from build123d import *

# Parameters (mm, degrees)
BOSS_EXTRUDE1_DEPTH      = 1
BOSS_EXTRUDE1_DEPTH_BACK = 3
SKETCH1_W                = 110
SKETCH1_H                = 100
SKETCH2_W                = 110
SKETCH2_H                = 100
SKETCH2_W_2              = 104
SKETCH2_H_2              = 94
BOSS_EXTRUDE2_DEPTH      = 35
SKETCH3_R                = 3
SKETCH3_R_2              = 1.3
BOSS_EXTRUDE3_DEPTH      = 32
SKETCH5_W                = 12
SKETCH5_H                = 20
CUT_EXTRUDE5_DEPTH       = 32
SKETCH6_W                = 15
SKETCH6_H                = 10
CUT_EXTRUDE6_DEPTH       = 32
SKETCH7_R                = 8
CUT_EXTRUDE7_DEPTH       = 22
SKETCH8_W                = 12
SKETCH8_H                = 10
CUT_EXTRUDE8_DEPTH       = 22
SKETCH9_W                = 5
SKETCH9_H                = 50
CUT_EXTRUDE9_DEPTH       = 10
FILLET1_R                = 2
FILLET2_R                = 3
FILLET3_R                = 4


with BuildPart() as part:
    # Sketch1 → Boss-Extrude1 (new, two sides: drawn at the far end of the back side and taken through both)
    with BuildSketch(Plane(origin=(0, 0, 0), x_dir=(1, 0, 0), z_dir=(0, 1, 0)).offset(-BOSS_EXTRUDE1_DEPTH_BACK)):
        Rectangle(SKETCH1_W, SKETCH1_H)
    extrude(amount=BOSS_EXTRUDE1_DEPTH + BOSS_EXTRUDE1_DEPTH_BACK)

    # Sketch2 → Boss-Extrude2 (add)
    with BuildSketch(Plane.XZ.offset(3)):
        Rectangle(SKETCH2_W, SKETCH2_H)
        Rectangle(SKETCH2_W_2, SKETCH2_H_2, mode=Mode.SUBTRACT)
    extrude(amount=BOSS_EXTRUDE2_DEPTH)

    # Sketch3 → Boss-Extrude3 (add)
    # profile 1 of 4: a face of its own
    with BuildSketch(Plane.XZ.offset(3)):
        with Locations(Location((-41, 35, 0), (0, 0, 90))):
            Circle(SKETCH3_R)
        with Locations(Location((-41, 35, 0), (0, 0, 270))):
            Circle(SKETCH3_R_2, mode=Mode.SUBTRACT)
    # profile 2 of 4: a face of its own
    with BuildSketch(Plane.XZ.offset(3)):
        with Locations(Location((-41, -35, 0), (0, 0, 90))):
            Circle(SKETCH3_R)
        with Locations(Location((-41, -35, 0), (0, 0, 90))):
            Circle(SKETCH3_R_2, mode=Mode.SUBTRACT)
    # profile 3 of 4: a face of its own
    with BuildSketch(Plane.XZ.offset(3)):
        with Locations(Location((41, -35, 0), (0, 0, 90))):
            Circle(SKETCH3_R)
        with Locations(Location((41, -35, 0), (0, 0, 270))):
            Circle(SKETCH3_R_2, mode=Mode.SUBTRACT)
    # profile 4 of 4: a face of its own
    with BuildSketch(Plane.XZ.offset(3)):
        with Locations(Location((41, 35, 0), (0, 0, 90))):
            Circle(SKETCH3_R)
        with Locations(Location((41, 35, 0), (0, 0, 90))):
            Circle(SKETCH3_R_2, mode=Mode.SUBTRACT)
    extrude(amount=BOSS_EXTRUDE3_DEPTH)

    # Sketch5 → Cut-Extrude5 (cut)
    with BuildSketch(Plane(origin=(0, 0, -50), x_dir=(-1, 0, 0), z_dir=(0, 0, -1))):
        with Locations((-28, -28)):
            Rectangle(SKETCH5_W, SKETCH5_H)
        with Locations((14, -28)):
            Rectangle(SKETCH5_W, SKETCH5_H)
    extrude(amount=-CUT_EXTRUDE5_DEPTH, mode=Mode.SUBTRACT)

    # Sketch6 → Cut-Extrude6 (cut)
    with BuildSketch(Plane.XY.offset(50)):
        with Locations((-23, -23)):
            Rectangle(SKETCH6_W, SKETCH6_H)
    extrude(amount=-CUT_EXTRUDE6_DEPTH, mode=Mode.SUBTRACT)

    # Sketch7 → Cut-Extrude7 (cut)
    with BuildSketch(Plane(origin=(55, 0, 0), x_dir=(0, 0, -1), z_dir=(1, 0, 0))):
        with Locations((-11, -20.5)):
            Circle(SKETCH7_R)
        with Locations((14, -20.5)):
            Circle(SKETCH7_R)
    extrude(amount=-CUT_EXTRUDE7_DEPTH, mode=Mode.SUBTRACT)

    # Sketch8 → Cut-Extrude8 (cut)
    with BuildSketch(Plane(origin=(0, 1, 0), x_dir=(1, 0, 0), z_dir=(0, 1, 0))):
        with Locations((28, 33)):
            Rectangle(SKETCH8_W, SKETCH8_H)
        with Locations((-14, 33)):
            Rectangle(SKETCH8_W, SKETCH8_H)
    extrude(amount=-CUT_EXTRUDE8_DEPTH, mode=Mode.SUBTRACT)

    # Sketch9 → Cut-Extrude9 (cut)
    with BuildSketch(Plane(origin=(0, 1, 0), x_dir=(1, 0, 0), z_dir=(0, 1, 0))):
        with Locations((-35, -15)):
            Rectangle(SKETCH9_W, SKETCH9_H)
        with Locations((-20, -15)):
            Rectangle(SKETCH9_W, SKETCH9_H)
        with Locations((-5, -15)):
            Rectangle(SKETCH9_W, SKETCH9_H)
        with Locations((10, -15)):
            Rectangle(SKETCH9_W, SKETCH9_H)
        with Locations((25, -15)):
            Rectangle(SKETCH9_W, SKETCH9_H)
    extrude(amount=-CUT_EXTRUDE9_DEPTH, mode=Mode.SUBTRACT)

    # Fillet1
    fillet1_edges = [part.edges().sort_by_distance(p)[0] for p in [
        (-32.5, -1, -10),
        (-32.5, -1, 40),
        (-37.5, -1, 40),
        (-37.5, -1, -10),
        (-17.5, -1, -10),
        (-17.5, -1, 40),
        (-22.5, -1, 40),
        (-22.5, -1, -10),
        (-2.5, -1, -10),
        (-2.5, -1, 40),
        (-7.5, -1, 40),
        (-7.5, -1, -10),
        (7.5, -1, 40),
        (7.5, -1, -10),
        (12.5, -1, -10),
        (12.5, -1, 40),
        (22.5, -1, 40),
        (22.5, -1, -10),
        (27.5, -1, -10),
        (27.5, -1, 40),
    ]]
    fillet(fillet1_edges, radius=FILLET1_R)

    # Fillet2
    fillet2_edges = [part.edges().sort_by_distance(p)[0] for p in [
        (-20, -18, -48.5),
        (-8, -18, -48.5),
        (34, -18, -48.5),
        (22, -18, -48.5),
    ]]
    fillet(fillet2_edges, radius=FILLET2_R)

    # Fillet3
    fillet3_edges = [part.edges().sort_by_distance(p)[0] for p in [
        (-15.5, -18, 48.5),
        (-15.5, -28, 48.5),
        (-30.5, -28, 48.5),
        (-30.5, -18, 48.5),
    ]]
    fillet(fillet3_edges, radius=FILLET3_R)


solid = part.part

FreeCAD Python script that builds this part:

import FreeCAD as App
import Part
import Sketcher

V = App.Vector


def edges_at(feature, points):
    """Names of the edges that pass closest to the given points."""
    edges = feature.Shape.Edges
    near = lambda p: min(range(len(edges)), key=lambda i: edges[i].distToShape(Part.Vertex(*p))[0])
    return sorted({f"Edge{near(p) + 1}" for p in points})


def add_polygon(sketch, points):
    """Adds a closed chain of lines whose ends are joined by coincident constraints."""
    first, n = sketch.GeometryCount, len(points)
    for a, b in zip(points, points[1:] + points[:1]):
        sketch.addGeometry(Part.LineSegment(App.Vector(*a, 0), App.Vector(*b, 0)), False)
    for i in range(n):
        sketch.addConstraint(Sketcher.Constraint("Coincident", first + i, 2, first + (i + 1) % n, 1))

doc = App.newDocument("Part")
params = doc.addObject("Spreadsheet::Sheet", "Params")
for row, (alias, value) in enumerate([
    ("sketch1_width", "110 mm"),
    ("sketch1_height", "100 mm"),
    ("pad1_length", "1 mm"),
    ("pad1_length2", "3 mm"),
    ("sketch2_width", "110 mm"),
    ("sketch2_width2", "104 mm"),
    ("sketch2_height", "100 mm"),
    ("sketch2_height2", "94 mm"),
    ("pad2_length", "35 mm"),
    ("sketch3_diameter", "6 mm"),
    ("sketch3_diameter2", "2.6 mm"),
    ("pad3_length", "32 mm"),
    ("sketch4_width", "12 mm"),
    ("sketch4_height", "20 mm"),
    ("pocket1_length", "32 mm"),
    ("sketch5_width", "15 mm"),
    ("sketch5_height", "10 mm"),
    ("pocket2_length", "32 mm"),
    ("sketch6_diameter", "16 mm"),
    ("pocket3_length", "22 mm"),
    ("sketch7_width", "12 mm"),
    ("sketch7_height", "10 mm"),
    ("pocket4_length", "22 mm"),
    ("sketch8_width", "5 mm"),
    ("sketch8_height", "50 mm"),
    ("pocket5_length", "10 mm"),
    ("fillet_radius", "2 mm"),
    ("fillet2_radius", "3 mm"),
    ("fillet3_radius", "4 mm"),
], start=1):
    params.set(f"A{row}", alias)
    params.set(f"B{row}", "=" + value)
    params.setAlias(f"B{row}", alias)

body = doc.addObject("PartDesign::Body", "Body")

# Sketch on XZ plane
sketch1 = body.newObject("Sketcher::SketchObject", "Sketch")
sketch1.AttachmentSupport = (doc.getObject("XZ_Plane"), [""])
sketch1.MapMode = "FlatFace"
add_polygon(sketch1, [(-55, -50), (-55, 50), (55, 50), (55, -50)])  # lines 0-3
sketch1.addConstraint(Sketcher.Constraint("Vertical", 0))
sketch1.addConstraint(Sketcher.Constraint("Horizontal", 1))
sketch1.addConstraint(Sketcher.Constraint("Vertical", 2))
sketch1.addConstraint(Sketcher.Constraint("Horizontal", 3))
sketch1.addConstraint(Sketcher.Constraint("Symmetric", 0, 2, 2, 2, -1, 1))
sketch1.addConstraint(Sketcher.Constraint("DistanceX", 1, 1, 1, 2, 110.0))
sketch1.addConstraint(Sketcher.Constraint("DistanceY", 0, 1, 0, 2, 100.0))
sketch1.setExpression("Constraints[9]", "Params.sketch1_width")
sketch1.setExpression("Constraints[10]", "Params.sketch1_height")
pad1 = body.newObject("PartDesign::Pad", "Pad")
pad1.Profile = sketch1
pad1.Type = "TwoLengths"
pad1.setExpression("Length", "Params.pad1_length")
pad1.setExpression("Length2", "Params.pad1_length2")
pad1.Reversed = True

# Sketch on XZ plane
sketch2 = body.newObject("Sketcher::SketchObject", "Sketch001")
sketch2.AttachmentSupport = (doc.getObject("XZ_Plane"), [""])
sketch2.MapMode = "FlatFace"
sketch2.AttachmentOffset = App.Placement(V(0, 0, 3), App.Rotation())
add_polygon(sketch2, [(-55, 50), (-55, -50), (55, -50), (55, 50)])  # lines 0-3
add_polygon(sketch2, [(52, -47), (-52, -47), (-52, 47), (52, 47)])  # lines 4-7
sketch2.addConstraint(Sketcher.Constraint("Vertical", 0))
sketch2.addConstraint(Sketcher.Constraint("Horizontal", 1))
sketch2.addConstraint(Sketcher.Constraint("Vertical", 2))
sketch2.addConstraint(Sketcher.Constraint("Horizontal", 3))
sketch2.addConstraint(Sketcher.Constraint("Horizontal", 4))
sketch2.addConstraint(Sketcher.Constraint("Vertical", 5))
sketch2.addConstraint(Sketcher.Constraint("Horizontal", 6))
sketch2.addConstraint(Sketcher.Constraint("Vertical", 7))
sketch2.addConstraint(Sketcher.Constraint("Symmetric", 0, 2, 2, 2, -1, 1))
sketch2.addConstraint(Sketcher.Constraint("Symmetric", 4, 2, 6, 2, -1, 1))
sketch2.addConstraint(Sketcher.Constraint("DistanceX", 1, 1, 1, 2, 110.0))
sketch2.addConstraint(Sketcher.Constraint("DistanceX", 4, 2, 4, 1, 104.0))
sketch2.addConstraint(Sketcher.Constraint("DistanceY", 0, 2, 0, 1, 100.0))
sketch2.addConstraint(Sketcher.Constraint("DistanceY", 5, 1, 5, 2, 94.0))
sketch2.setExpression("Constraints[18]", "Params.sketch2_width")
sketch2.setExpression("Constraints[19]", "Params.sketch2_width2")
sketch2.setExpression("Constraints[20]", "Params.sketch2_height")
sketch2.setExpression("Constraints[21]", "Params.sketch2_height2")
pad2 = body.newObject("PartDesign::Pad", "Pad001")
pad2.Profile = sketch2
pad2.setExpression("Length", "Params.pad2_length")

# Sketch on XZ plane
sketch3 = body.newObject("Sketcher::SketchObject", "Sketch002")
sketch3.AttachmentSupport = (doc.getObject("XZ_Plane"), [""])
sketch3.MapMode = "FlatFace"
sketch3.AttachmentOffset = App.Placement(V(0, 0, 3), App.Rotation())
sketch3.addGeometry(Part.Circle(V(-41, 35, 0), V(0, 0, 1), 3), False)
sketch3.addGeometry(Part.Circle(V(-41, 35, 0), V(0, 0, 1), 1.3), False)
sketch3.addGeometry(Part.Circle(V(-41, -35, 0), V(0, 0, 1), 3), False)
sketch3.addGeometry(Part.Circle(V(-41, -35, 0), V(0, 0, 1), 1.3), False)
sketch3.addGeometry(Part.Circle(V(41, -35, 0), V(0, 0, 1), 3), False)
sketch3.addGeometry(Part.Circle(V(41, -35, 0), V(0, 0, 1), 1.3), False)
sketch3.addGeometry(Part.Circle(V(41, 35, 0), V(0, 0, 1), 3), False)
sketch3.addGeometry(Part.Circle(V(41, 35, 0), V(0, 0, 1), 1.3), False)
sketch3.addConstraint(Sketcher.Constraint("Coincident", 1, 3, 0, 3))
sketch3.addConstraint(Sketcher.Constraint("Coincident", 3, 3, 2, 3))
sketch3.addConstraint(Sketcher.Constraint("Coincident", 5, 3, 4, 3))
sketch3.addConstraint(Sketcher.Constraint("Coincident", 7, 3, 6, 3))
sketch3.addConstraint(Sketcher.Constraint("Equal", 0, 2))
sketch3.addConstraint(Sketcher.Constraint("Equal", 1, 3))
sketch3.addConstraint(Sketcher.Constraint("Equal", 2, 4))
sketch3.addConstraint(Sketcher.Constraint("Equal", 3, 5))
sketch3.addConstraint(Sketcher.Constraint("Equal", 4, 6))
sketch3.addConstraint(Sketcher.Constraint("Equal", 5, 7))
sketch3.addConstraint(Sketcher.Constraint("Symmetric", 0, 3, 4, 3, -1, 1))
sketch3.addConstraint(Sketcher.Constraint("Symmetric", 2, 3, 6, 3, -1, 1))
sketch3.addConstraint(Sketcher.Constraint("Symmetric", 2, 3, 4, 3, -2))
sketch3.addConstraint(Sketcher.Constraint("Diameter", 0, 6.0))
sketch3.addConstraint(Sketcher.Constraint("Diameter", 1, 2.6))
sketch3.addConstraint(Sketcher.Constraint("DistanceX", 0, 3, -1, 1, 41.0))
sketch3.addConstraint(Sketcher.Constraint("DistanceY", -1, 1, 0, 3, 35.0))
sketch3.setExpression("Constraints[13]", "Params.sketch3_diameter")
sketch3.setExpression("Constraints[14]", "Params.sketch3_diameter2")
pad3 = body.newObject("PartDesign::Pad", "Pad002")
pad3.Profile = sketch3
pad3.setExpression("Length", "Params.pad3_length")

# Sketch on XY plane
sketch4 = body.newObject("Sketcher::SketchObject", "Sketch003")
sketch4.AttachmentSupport = (doc.getObject("XY_Plane"), [""])
sketch4.MapMode = "FlatFace"
sketch4.AttachmentOffset = App.Placement(V(0, 0, -50), App.Rotation())
add_polygon(sketch4, [(34, -18), (34, -38), (22, -38), (22, -18)])  # lines 0-3
add_polygon(sketch4, [(-8, -18), (-8, -38), (-20, -38), (-20, -18)])  # lines 4-7
sketch4.addConstraint(Sketcher.Constraint("Vertical", 0))
sketch4.addConstraint(Sketcher.Constraint("Horizontal", 1))
sketch4.addConstraint(Sketcher.Constraint("Vertical", 2))
sketch4.addConstraint(Sketcher.Constraint("Horizontal", 3))
sketch4.addConstraint(Sketcher.Constraint("Vertical", 4))
sketch4.addConstraint(Sketcher.Constraint("Horizontal", 5))
sketch4.addConstraint(Sketcher.Constraint("Vertical", 6))
sketch4.addConstraint(Sketcher.Constraint("Horizontal", 7))
sketch4.addConstraint(Sketcher.Constraint("Horizontal", 1, 2, 4, 2))
sketch4.addConstraint(Sketcher.Constraint("Horizontal", 3, 2, 6, 2))
sketch4.addConstraint(Sketcher.Constraint("Equal", 3, 5))
sketch4.addConstraint(Sketcher.Constraint("DistanceX", 1, 2, 1, 1, 12.0))
sketch4.addConstraint(Sketcher.Constraint("DistanceY", 0, 2, 0, 1, 20.0))
sketch4.addConstraint(Sketcher.Constraint("DistanceX", -1, 1, 0, 2, 34.0))
sketch4.addConstraint(Sketcher.Constraint("DistanceY", 0, 2, -1, 1, 38.0))
sketch4.addConstraint(Sketcher.Constraint("DistanceX", 4, 2, -1, 1, 8.0))
sketch4.setExpression("Constraints[19]", "Params.sketch4_width")
sketch4.setExpression("Constraints[20]", "Params.sketch4_height")
pocket1 = body.newObject("PartDesign::Pocket", "Pocket")
pocket1.Profile = sketch4
pocket1.setExpression("Length", "Params.pocket1_length")
pocket1.Reversed = True

# Sketch on XY plane
sketch5 = body.newObject("Sketcher::SketchObject", "Sketch004")
sketch5.AttachmentSupport = (doc.getObject("XY_Plane"), [""])
sketch5.MapMode = "FlatFace"
sketch5.AttachmentOffset = App.Placement(V(0, 0, 50), App.Rotation())
add_polygon(sketch5, [(-30, -18), (-30, -28), (-16, -28), (-16, -18)])  # lines 0-3
sketch5.addConstraint(Sketcher.Constraint("Vertical", 0))
sketch5.addConstraint(Sketcher.Constraint("Horizontal", 1))
sketch5.addConstraint(Sketcher.Constraint("Vertical", 2))
sketch5.addConstraint(Sketcher.Constraint("Horizontal", 3))
sketch5.addConstraint(Sketcher.Constraint("DistanceX", 1, 1, 1, 2, 15.0))
sketch5.addConstraint(Sketcher.Constraint("DistanceY", 0, 2, 0, 1, 10.0))
sketch5.addConstraint(Sketcher.Constraint("DistanceY", 0, 2, -1, 1, 28.0))
sketch5.addConstraint(Sketcher.Constraint("DistanceX", 0, 2, -1, 1, 30.5))
sketch5.setExpression("Constraints[8]", "Params.sketch5_width")
sketch5.setExpression("Constraints[9]", "Params.sketch5_height")
pocket2 = body.newObject("PartDesign::Pocket", "Pocket001")
pocket2.Profile = sketch5
pocket2.setExpression("Length", "Params.pocket2_length")

# Sketch on YZ plane
sketch6 = body.newObject("Sketcher::SketchObject", "Sketch005")
sketch6.AttachmentSupport = (doc.getObject("YZ_Plane"), [""])
sketch6.MapMode = "FlatFace"
sketch6.AttachmentOffset = App.Placement(V(0, 0, 55), App.Rotation())
sketch6.addGeometry(Part.Circle(V(-20, 11, 0), V(0, 0, 1), 8), False)
sketch6.addGeometry(Part.Circle(V(-20, -14, 0), V(0, 0, 1), 8), False)
sketch6.addConstraint(Sketcher.Constraint("Equal", 0, 1))
sketch6.addConstraint(Sketcher.Constraint("Vertical", 0, 3, 1, 3))
sketch6.addConstraint(Sketcher.Constraint("Diameter", 0, 16.0))
sketch6.addConstraint(Sketcher.Constraint("DistanceY", -1, 1, 0, 3, 11.0))
sketch6.addConstraint(Sketcher.Constraint("DistanceY", 1, 3, -1, 1, 14.0))
sketch6.addConstraint(Sketcher.Constraint("DistanceX", 0, 3, -1, 1, 20.5))
sketch6.setExpression("Constraints[2]", "Params.sketch6_diameter")
pocket3 = body.newObject("PartDesign::Pocket", "Pocket002")
pocket3.Profile = sketch6
pocket3.setExpression("Length", "Params.pocket3_length")

# Sketch on XZ plane
sketch7 = body.newObject("Sketcher::SketchObject", "Sketch006")
sketch7.AttachmentSupport = (doc.getObject("XZ_Plane"), [""])
sketch7.MapMode = "FlatFace"
sketch7.AttachmentOffset = App.Placement(V(0, 0, -1), App.Rotation())
add_polygon(sketch7, [(22, -38), (22, -28), (34, -28), (34, -38)])  # lines 0-3
add_polygon(sketch7, [(-20, -38), (-20, -28), (-8, -28), (-8, -38)])  # lines 4-7
sketch7.addConstraint(Sketcher.Constraint("Vertical", 0))
sketch7.addConstraint(Sketcher.Constraint("Horizontal", 1))
sketch7.addConstraint(Sketcher.Constraint("Vertical", 2))
sketch7.addConstraint(Sketcher.Constraint("Horizontal", 3))
sketch7.addConstraint(Sketcher.Constraint("Vertical", 4))
sketch7.addConstraint(Sketcher.Constraint("Horizontal", 5))
sketch7.addConstraint(Sketcher.Constraint("Vertical", 6))
sketch7.addConstraint(Sketcher.Constraint("Horizontal", 7))
sketch7.addConstraint(Sketcher.Constraint("Horizontal", 1, 2, 4, 2))
sketch7.addConstraint(Sketcher.Constraint("Horizontal", 3, 2, 6, 2))
sketch7.addConstraint(Sketcher.Constraint("Equal", 3, 5))
sketch7.addConstraint(Sketcher.Constraint("DistanceX", 1, 1, 1, 2, 12.0))
sketch7.addConstraint(Sketcher.Constraint("DistanceY", 0, 1, 0, 2, 10.0))
sketch7.addConstraint(Sketcher.Constraint("DistanceX", -1, 1, 0, 2, 22.0))
sketch7.addConstraint(Sketcher.Constraint("DistanceY", 0, 2, -1, 1, 28.0))
sketch7.addConstraint(Sketcher.Constraint("DistanceX", 4, 2, -1, 1, 20.0))
sketch7.setExpression("Constraints[19]", "Params.sketch7_width")
sketch7.setExpression("Constraints[20]", "Params.sketch7_height")
pocket4 = body.newObject("PartDesign::Pocket", "Pocket003")
pocket4.Profile = sketch7
pocket4.setExpression("Length", "Params.pocket4_length")
pocket4.Reversed = True

# Sketch on XZ plane
sketch8 = body.newObject("Sketcher::SketchObject", "Sketch007")
sketch8.AttachmentSupport = (doc.getObject("XZ_Plane"), [""])
sketch8.MapMode = "FlatFace"
sketch8.AttachmentOffset = App.Placement(V(0, 0, -1), App.Rotation())
add_polygon(sketch8, [(-38, -10), (-38, 40), (-32, 40), (-32, -10)])  # lines 0-3
add_polygon(sketch8, [(-22, -10), (-22, 40), (-18, 40), (-18, -10)])  # lines 4-7
add_polygon(sketch8, [(-8, -10), (-8, 40), (-2, 40), (-2, -10)])  # lines 8-11
add_polygon(sketch8, [(8, -10), (8, 40), (12, 40), (12, -10)])  # lines 12-15
add_polygon(sketch8, [(22, -10), (22, 40), (28, 40), (28, -10)])  # lines 16-19
sketch8.addConstraint(Sketcher.Constraint("Vertical", 0))
sketch8.addConstraint(Sketcher.Constraint("Horizontal", 1))
sketch8.addConstraint(Sketcher.Constraint("Vertical", 2))
sketch8.addConstraint(Sketcher.Constraint("Horizontal", 3))
sketch8.addConstraint(Sketcher.Constraint("Vertical", 4))
sketch8.addConstraint(Sketcher.Constraint("Horizontal", 5))
sketch8.addConstraint(Sketcher.Constraint("Vertical", 6))
sketch8.addConstraint(Sketcher.Constraint("Horizontal", 7))
sketch8.addConstraint(Sketcher.Constraint("Vertical", 8))
sketch8.addConstraint(Sketcher.Constraint("Horizontal", 9))
sketch8.addConstraint(Sketcher.Constraint("Vertical", 10))
sketch8.addConstraint(Sketcher.Constraint("Horizontal", 11))
sketch8.addConstraint(Sketcher.Constraint("Vertical", 12))
sketch8.addConstraint(Sketcher.Constraint("Horizontal", 13))
sketch8.addConstraint(Sketcher.Constraint("Vertical", 14))
sketch8.addConstraint(Sketcher.Constraint("Horizontal", 15))
sketch8.addConstraint(Sketcher.Constraint("Vertical", 16))
sketch8.addConstraint(Sketcher.Constraint("Horizontal", 17))
sketch8.addConstraint(Sketcher.Constraint("Vertical", 18))
sketch8.addConstraint(Sketcher.Constraint("Horizontal", 19))
sketch8.addConstraint(Sketcher.Constraint("Symmetric", 8, 2, 12, 2, -2))
sketch8.addConstraint(Sketcher.Constraint("Symmetric", 4, 2, 16, 2, -2))
sketch8.addConstraint(Sketcher.Constraint("Horizontal", 1, 2, 4, 2))
sketch8.addConstraint(Sketcher.Constraint("Horizontal", 3, 2, 6, 2))
sketch8.addConstraint(Sketcher.Constraint("Horizontal", 5, 2, 8, 2))
sketch8.addConstraint(Sketcher.Constraint("Horizontal", 7, 2, 10, 2))
sketch8.addConstraint(Sketcher.Constraint("Horizontal", 11, 2, 14, 2))
sketch8.addConstraint(Sketcher.Constraint("Horizontal", 15, 2, 18, 2))
sketch8.addConstraint(Sketcher.Constraint("Equal", 3, 5))
sketch8.addConstraint(Sketcher.Constraint("Equal", 7, 9))
sketch8.addConstraint(Sketcher.Constraint("Equal", 11, 13))
sketch8.addConstraint(Sketcher.Constraint("Equal", 15, 17))
sketch8.addConstraint(Sketcher.Constraint("DistanceX", 1, 1, 1, 2, 5.0))
sketch8.addConstraint(Sketcher.Constraint("DistanceY", 0, 1, 0, 2, 50.0))
sketch8.addConstraint(Sketcher.Constraint("DistanceY", -1, 1, 0, 2, 40.0))
sketch8.addConstraint(Sketcher.Constraint("DistanceX", 1, 2, 4, 2, 10.0))
sketch8.addConstraint(Sketcher.Constraint("DistanceX", 5, 2, 8, 2, 10.0))
sketch8.addConstraint(Sketcher.Constraint("DistanceX", 9, 2, 12, 2, 10.0))
sketch8.setExpression("Constraints[52]", "Params.sketch8_width")
sketch8.setExpression("Constraints[53]", "Params.sketch8_height")
pocket5 = body.newObject("PartDesign::Pocket", "Pocket004")
pocket5.Profile = sketch8
pocket5.setExpression("Length", "Params.pocket5_length")
pocket5.Reversed = True
doc.recompute()

fillet = body.newObject("PartDesign::Fillet", "Fillet")
fillet.Base = (pocket5, edges_at(pocket5, [
    (-32.5, -1, -10),
    (-32.5, -1, 40),
    (-37.5, -1, 40),
    (-37.5, -1, -10),
    (-17.5, -1, -10),
    (-17.5, -1, 40),
    (-22.5, -1, 40),
    (-22.5, -1, -10),
    (-2.5, -1, -10),
    (-2.5, -1, 40),
    (-7.5, -1, 40),
    (-7.5, -1, -10),
    (7.5, -1, 40),
    (7.5, -1, -10),
    (12.5, -1, -10),
    (12.5, -1, 40),
    (22.5, -1, 40),
    (22.5, -1, -10),
    (27.5, -1, -10),
    (27.5, -1, 40),
]))
fillet.setExpression("Radius", "Params.fillet_radius")
doc.recompute()

fillet2 = body.newObject("PartDesign::Fillet", "Fillet001")
fillet2.Base = (fillet, edges_at(fillet, [
    (-20, -18, -48.5),
    (-8, -18, -48.5),
    (34, -18, -48.5),
    (22, -18, -48.5),
]))
fillet2.setExpression("Radius", "Params.fillet2_radius")
doc.recompute()

fillet3 = body.newObject("PartDesign::Fillet", "Fillet002")
fillet3.Base = (fillet2, edges_at(fillet2, [
    (-15.5, -18, 48.5),
    (-15.5, -28, 48.5),
    (-30.5, -28, 48.5),
    (-30.5, -18, 48.5),
]))
fillet3.setExpression("Radius", "Params.fillet3_radius")

doc.recompute()
